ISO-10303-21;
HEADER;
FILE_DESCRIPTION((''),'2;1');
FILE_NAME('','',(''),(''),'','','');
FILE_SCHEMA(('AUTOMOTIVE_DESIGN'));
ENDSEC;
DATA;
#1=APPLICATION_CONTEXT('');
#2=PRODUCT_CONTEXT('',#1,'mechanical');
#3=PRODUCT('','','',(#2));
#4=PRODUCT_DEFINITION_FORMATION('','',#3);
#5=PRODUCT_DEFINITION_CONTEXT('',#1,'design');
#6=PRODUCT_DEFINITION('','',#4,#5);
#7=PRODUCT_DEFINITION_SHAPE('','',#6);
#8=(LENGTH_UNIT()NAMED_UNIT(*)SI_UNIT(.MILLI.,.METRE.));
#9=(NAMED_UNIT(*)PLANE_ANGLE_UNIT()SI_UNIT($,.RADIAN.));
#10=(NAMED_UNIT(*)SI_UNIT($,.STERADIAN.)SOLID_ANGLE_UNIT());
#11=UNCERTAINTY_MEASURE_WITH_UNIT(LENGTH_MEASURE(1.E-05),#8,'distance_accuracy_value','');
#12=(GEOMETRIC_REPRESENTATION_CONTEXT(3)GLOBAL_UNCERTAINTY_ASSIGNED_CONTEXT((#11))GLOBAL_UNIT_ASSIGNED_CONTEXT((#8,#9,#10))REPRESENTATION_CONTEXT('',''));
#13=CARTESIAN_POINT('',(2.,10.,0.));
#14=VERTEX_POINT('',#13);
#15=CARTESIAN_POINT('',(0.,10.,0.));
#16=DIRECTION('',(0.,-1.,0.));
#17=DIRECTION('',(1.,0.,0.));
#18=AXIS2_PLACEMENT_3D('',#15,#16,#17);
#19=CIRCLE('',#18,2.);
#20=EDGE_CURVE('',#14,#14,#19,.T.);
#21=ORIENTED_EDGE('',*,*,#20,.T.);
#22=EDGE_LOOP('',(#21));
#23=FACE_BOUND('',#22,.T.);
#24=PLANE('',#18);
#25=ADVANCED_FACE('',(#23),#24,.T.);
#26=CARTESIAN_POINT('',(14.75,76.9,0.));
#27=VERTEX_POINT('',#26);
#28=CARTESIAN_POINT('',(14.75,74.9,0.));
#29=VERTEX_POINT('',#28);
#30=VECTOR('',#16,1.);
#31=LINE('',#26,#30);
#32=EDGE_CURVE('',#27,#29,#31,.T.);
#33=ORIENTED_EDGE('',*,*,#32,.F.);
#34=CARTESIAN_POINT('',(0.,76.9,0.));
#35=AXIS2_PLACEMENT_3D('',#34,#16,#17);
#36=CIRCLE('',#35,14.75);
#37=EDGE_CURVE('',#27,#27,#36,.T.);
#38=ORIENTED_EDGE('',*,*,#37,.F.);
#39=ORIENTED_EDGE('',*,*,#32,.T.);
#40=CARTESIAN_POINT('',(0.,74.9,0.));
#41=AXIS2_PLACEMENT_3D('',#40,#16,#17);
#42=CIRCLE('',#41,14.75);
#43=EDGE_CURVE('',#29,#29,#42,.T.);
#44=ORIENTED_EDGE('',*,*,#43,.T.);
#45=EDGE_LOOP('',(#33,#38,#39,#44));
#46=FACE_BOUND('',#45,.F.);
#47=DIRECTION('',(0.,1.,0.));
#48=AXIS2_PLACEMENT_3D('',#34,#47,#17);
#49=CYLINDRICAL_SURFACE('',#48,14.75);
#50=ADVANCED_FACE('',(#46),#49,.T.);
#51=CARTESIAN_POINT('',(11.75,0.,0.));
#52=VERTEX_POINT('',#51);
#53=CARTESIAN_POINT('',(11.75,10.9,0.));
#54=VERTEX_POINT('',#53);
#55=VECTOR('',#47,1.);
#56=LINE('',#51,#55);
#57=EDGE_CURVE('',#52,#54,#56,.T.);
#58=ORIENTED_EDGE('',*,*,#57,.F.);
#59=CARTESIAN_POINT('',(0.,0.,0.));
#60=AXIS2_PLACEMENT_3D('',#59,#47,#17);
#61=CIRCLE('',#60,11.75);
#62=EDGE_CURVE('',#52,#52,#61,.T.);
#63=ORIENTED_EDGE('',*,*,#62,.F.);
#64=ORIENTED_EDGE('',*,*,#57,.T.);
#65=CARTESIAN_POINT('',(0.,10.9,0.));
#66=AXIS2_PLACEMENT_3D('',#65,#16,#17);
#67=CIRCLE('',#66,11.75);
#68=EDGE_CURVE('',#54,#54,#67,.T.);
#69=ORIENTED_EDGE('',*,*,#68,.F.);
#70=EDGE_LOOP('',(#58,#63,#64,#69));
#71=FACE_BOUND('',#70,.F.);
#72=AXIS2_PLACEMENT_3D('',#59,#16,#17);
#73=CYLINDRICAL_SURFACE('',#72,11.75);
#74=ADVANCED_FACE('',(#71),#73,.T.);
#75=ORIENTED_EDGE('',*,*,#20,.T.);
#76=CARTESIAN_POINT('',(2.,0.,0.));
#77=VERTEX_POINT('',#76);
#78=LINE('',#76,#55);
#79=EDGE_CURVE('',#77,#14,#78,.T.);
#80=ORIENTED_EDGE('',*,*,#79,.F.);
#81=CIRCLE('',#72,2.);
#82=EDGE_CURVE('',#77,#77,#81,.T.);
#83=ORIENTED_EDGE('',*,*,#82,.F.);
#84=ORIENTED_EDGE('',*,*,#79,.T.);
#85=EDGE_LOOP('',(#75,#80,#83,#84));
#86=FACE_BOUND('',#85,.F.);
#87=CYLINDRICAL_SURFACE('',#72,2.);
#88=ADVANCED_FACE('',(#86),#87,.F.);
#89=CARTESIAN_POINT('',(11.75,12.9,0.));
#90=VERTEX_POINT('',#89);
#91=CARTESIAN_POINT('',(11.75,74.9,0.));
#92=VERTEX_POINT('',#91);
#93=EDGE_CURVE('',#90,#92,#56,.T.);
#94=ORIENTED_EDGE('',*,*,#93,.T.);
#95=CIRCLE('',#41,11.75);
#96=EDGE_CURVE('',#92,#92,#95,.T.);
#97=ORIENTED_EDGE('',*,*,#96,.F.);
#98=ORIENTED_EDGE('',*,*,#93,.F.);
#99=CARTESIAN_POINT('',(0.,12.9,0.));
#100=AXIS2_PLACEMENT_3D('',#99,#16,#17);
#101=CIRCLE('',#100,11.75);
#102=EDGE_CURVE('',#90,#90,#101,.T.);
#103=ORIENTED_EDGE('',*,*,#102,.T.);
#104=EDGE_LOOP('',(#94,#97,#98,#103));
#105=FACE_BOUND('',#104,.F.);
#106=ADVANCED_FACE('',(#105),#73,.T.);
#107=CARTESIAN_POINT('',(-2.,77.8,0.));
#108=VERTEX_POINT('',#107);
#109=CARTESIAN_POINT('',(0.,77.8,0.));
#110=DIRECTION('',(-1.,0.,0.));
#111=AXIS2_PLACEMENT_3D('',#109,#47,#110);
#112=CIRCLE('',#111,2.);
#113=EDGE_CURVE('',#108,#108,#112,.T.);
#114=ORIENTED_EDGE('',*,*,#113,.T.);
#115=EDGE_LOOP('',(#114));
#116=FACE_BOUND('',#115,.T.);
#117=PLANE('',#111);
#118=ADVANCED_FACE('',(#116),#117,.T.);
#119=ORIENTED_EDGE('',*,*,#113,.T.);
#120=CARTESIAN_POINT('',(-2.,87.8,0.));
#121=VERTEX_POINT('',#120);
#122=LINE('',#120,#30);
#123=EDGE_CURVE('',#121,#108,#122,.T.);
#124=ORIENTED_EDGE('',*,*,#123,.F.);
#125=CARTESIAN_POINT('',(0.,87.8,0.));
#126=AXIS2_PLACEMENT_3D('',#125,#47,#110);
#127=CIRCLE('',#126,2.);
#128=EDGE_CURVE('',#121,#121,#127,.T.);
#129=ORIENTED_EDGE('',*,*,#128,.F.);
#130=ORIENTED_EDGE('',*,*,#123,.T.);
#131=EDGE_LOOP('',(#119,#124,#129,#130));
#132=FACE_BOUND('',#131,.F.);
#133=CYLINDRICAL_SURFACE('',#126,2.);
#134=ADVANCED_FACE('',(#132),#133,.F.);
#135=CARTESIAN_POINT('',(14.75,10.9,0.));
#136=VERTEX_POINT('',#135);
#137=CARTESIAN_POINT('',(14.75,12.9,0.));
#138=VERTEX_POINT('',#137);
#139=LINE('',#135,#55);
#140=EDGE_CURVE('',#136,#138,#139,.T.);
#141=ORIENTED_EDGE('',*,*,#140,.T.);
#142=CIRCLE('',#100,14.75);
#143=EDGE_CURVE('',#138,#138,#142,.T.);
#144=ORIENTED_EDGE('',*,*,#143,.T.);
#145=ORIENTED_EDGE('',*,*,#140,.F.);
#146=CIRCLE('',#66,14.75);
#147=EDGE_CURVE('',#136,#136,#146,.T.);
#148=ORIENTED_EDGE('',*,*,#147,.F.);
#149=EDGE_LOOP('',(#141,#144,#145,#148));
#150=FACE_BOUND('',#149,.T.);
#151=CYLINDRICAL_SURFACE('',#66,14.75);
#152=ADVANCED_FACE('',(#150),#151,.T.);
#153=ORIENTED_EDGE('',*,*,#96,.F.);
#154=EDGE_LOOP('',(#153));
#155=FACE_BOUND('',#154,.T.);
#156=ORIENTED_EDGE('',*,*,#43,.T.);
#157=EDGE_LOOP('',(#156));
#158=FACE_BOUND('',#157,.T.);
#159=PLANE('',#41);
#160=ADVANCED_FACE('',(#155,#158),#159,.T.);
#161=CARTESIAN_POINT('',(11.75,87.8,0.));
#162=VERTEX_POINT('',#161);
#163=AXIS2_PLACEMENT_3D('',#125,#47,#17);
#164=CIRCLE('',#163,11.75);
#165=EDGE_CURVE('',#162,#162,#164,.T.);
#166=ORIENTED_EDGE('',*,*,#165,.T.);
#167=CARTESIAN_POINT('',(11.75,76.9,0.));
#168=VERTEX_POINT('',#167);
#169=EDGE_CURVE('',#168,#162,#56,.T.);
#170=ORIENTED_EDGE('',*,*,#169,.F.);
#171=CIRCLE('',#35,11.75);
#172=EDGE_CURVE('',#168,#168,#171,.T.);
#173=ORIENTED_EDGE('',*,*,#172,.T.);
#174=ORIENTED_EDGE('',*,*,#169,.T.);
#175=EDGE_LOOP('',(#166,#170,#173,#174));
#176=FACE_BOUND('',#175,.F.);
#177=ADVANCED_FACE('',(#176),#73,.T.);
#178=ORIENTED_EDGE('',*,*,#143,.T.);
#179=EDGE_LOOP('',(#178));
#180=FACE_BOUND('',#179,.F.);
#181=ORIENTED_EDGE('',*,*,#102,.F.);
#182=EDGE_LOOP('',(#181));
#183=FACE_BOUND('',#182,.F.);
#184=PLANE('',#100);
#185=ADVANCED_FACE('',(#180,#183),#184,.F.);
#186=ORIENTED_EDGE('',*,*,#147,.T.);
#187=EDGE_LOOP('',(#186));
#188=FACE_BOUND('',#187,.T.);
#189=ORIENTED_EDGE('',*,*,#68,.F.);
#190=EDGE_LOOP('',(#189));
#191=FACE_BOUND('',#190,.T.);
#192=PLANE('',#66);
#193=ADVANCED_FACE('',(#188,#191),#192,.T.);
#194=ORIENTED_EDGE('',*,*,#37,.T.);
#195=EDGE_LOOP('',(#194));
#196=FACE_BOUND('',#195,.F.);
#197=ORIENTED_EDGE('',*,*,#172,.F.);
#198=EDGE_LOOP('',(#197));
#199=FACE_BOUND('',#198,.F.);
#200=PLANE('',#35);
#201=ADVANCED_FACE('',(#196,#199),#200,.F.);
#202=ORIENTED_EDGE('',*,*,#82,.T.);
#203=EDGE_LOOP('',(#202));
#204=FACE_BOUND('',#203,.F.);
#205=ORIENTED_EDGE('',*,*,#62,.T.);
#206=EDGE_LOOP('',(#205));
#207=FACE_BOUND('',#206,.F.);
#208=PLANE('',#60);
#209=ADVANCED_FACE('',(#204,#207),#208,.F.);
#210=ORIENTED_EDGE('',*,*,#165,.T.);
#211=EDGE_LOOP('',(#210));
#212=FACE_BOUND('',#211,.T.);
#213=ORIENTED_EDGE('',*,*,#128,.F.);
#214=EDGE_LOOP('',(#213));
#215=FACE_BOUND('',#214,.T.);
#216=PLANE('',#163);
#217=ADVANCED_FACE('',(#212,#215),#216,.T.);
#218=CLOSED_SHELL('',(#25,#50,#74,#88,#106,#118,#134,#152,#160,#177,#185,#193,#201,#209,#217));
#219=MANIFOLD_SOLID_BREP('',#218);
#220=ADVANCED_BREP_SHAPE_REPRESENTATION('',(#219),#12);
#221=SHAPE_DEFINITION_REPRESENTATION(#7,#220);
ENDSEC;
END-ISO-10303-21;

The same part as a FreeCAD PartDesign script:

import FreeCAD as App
import Part
import Sketcher

V = App.Vector
Q = App.Units.Quantity

doc = App.newDocument("Part")
body = doc.addObject("PartDesign::Body", "Body")

sketch1 = body.newObject("Sketcher::SketchObject", "Sketch")
sketch1.AttachmentSupport = (doc.getObject("XZ_Plane"), [""])
sketch1.MapMode = "FlatFace"
sketch1.addGeometry(Part.Circle(V(0, 0, 0), V(0, 0, 1), 11.75), False)
sketch1.addConstraint([
    Sketcher.Constraint("Coincident", 0, 3, -1, 1),
    Sketcher.Constraint("Diameter", 0, Q("23.5 mm")),
])
pad1 = body.newObject("PartDesign::Pad", "Pad")
pad1.Profile = sketch1
pad1.Length = 87.8
pad1.Reversed = True

sketch2 = body.newObject("Sketcher::SketchObject", "Sketch001")
sketch2.AttachmentSupport = (doc.getObject("XZ_Plane"), [""])
sketch2.MapMode = "FlatFace"
sketch2.addGeometry(Part.Circle(V(0, 0, 0), V(0, 0, 1), 2), False)
sketch2.addConstraint([
    Sketcher.Constraint("Coincident", 0, 3, -1, 1),
    Sketcher.Constraint("Diameter", 0, Q("4 mm")),
])
pocket1 = body.newObject("PartDesign::Pocket", "Pocket")
pocket1.Profile = sketch2
pocket1.Length = 10

sketch3 = body.newObject("Sketcher::SketchObject", "Sketch002")
sketch3.AttachmentSupport = (doc.getObject("XZ_Plane"), [""])
sketch3.MapMode = "FlatFace"
sketch3.AttachmentOffset = App.Placement(V(0, 0, -87.8), App.Rotation())
sketch3.addGeometry(Part.Circle(V(0, 0, 0), V(0, 0, 1), 2), False)
sketch3.addConstraint([
    Sketcher.Constraint("Coincident", 0, 3, -1, 1),
    Sketcher.Constraint("Diameter", 0, Q("4 mm")),
])
pocket2 = body.newObject("PartDesign::Pocket", "Pocket001")
pocket2.Profile = sketch3
pocket2.Length = 10
pocket2.Reversed = True

sketch4 = body.newObject("Sketcher::SketchObject", "Sketch003")
sketch4.AttachmentSupport = (doc.getObject("XZ_Plane"), [""])
sketch4.MapMode = "FlatFace"
sketch4.AttachmentOffset = App.Placement(V(0, 0, -10.9), App.Rotation())
sketch4.addGeometry([
    Part.Circle(V(0, 0, 0), V(0, 0, 1), 14.75),
    Part.Circle(V(0, 0, 0), V(0, 0, 1), 11.75),
], False)
sketch4.addConstraint([
    Sketcher.Constraint("Coincident", 0, 3, -1, 1),
    Sketcher.Constraint("Coincident", 1, 3, -1, 1),
    Sketcher.Constraint("Diameter", 0, Q("29.5 mm")),
    Sketcher.Constraint("Diameter", 1, Q("23.5 mm")),
])
pad2 = body.newObject("PartDesign::Pad", "Pad001")
pad2.Profile = sketch4
pad2.Length = 2
pad2.Reversed = True

sketch5 = body.newObject("Sketcher::SketchObject", "Sketch004")
sketch5.AttachmentSupport = (doc.getObject("XZ_Plane"), [""])
sketch5.MapMode = "FlatFace"
sketch5.AttachmentOffset = App.Placement(V(0, 0, -76.9), App.Rotation())
sketch5.addGeometry([
    Part.Circle(V(0, 0, 0), V(0, 0, 1), 14.75),
    Part.Circle(V(0, 0, 0), V(0, 0, 1), 11.75),
], False)
sketch5.addConstraint([
    Sketcher.Constraint("Coincident", 0, 3, -1, 1),
    Sketcher.Constraint("Coincident", 1, 3, -1, 1),
    Sketcher.Constraint("Diameter", 0, Q("29.5 mm")),
    Sketcher.Constraint("Diameter", 1, Q("23.5 mm")),
])
pad3 = body.newObject("PartDesign::Pad", "Pad002")
pad3.Profile = sketch5
pad3.Length = 2

doc.recompute()
